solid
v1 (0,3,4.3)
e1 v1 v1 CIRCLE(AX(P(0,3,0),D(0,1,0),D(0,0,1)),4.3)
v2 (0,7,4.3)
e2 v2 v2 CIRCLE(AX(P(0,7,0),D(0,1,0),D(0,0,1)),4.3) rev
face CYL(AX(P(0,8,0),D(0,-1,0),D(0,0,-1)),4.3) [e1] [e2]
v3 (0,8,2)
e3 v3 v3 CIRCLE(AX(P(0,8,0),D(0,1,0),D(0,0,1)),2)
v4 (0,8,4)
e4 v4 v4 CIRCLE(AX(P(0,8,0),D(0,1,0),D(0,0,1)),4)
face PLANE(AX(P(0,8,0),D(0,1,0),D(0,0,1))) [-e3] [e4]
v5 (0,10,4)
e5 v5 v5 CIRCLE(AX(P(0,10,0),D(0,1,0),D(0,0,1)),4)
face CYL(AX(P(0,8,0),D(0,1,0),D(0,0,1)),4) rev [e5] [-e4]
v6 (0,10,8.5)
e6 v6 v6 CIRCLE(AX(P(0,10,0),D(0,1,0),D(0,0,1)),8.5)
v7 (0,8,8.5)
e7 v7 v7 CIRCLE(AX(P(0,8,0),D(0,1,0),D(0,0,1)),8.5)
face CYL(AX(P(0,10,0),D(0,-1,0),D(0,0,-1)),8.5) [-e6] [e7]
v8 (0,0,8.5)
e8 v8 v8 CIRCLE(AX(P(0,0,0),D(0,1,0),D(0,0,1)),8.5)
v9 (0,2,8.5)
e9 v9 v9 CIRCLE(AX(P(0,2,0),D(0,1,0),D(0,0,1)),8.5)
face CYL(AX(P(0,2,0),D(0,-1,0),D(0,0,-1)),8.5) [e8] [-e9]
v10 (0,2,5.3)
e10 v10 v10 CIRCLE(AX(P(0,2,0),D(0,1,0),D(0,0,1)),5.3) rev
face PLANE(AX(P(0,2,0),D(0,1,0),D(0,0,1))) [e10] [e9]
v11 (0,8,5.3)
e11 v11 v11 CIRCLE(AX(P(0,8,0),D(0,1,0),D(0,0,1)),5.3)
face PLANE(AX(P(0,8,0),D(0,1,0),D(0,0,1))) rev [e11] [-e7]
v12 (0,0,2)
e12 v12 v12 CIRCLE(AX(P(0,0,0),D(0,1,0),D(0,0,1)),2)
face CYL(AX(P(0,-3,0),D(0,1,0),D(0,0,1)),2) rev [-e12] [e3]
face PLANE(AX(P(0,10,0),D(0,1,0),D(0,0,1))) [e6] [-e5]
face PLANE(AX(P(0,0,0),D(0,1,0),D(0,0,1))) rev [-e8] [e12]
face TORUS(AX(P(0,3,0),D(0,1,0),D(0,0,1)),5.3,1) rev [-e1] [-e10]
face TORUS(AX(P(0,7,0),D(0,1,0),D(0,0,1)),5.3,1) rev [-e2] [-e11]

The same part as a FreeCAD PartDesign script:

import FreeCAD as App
import Part
import Sketcher
Q = App.Units.Quantity


def edges_at(feature, points):
    """Names of the edges that pass closest to the given points."""
    edges = feature.Shape.Edges
    near = lambda p: min(range(len(edges)), key=lambda i: edges[i].distToShape(Part.Vertex(*p))[0])
    return sorted({f"Edge{near(p) + 1}" for p in points})

doc = App.newDocument("Part")
body = doc.addObject("PartDesign::Body", "Body")

# Sketch on XZ plane
sketch1 = body.newObject("Sketcher::SketchObject", "Sketch")
sketch1.AttachmentSupport = (doc.getObject("XZ_Plane"), [""])
sketch1.MapMode = "FlatFace"
sketch1.addGeometry(Part.Circle(App.Vector(0, 0, 0), App.Vector(0, 0, 1), 8), False)
sketch1.addConstraint(Sketcher.Constraint("Coincident", 0, 3, -1, 1))
sketch1.addConstraint(Sketcher.Constraint("Diameter", 0, Q("17 mm")))
pad1 = body.newObject("PartDesign::Pad", "Pad")
pad1.Profile = sketch1
pad1.Length = 2
pad1.Reversed = True

# Sketch on XZ plane
sketch2 = body.newObject("Sketcher::SketchObject", "Sketch001")
sketch2.AttachmentSupport = (doc.getObject("XZ_Plane"), [""])
sketch2.MapMode = "FlatFace"
sketch2.AttachmentOffset = App.Placement(App.Vector(0, 0, -2), App.Rotation())
sketch2.addGeometry(Part.Circle(App.Vector(0, 0, 0), App.Vector(0, 0, 1), 4.3), False)
sketch2.addConstraint(Sketcher.Constraint("Coincident", 0, 3, -1, 1))
sketch2.addConstraint(Sketcher.Constraint("Diameter", 0, Q("8.6 mm")))
pad2 = body.newObject("PartDesign::Pad", "Pad001")
pad2.Profile = sketch2
pad2.Length = 6
pad2.Reversed = True

# Sketch on XZ plane
sketch3 = body.newObject("Sketcher::SketchObject", "Sketch002")
sketch3.AttachmentSupport = (doc.getObject("XZ_Plane"), [""])
sketch3.MapMode = "FlatFace"
sketch3.AttachmentOffset = App.Placement(App.Vector(0, 0, -8), App.Rotation())
sketch3.addGeometry(Part.Circle(App.Vector(0, 0, 0), App.Vector(0, 0, 1), 8), False)
sketch3.addConstraint(Sketcher.Constraint("Coincident", 0, 3, -1, 1))
sketch3.addConstraint(Sketcher.Constraint("Diameter", 0, Q("17 mm")))
pad3 = body.newObject("PartDesign::Pad", "Pad002")
pad3.Profile = sketch3
pad3.Length = 2
pad3.Reversed = True

# Sketch on XZ plane
sketch4 = body.newObject("Sketcher::SketchObject", "Sketch003")
sketch4.AttachmentSupport = (doc.getObject("XZ_Plane"), [""])
sketch4.MapMode = "FlatFace"
sketch4.AttachmentOffset = App.Placement(App.Vector(0, 0, -10), App.Rotation())
sketch4.addGeometry(Part.Circle(App.Vector(0, 0, 0), App.Vector(0, 0, 1), 4), False)
sketch4.addConstraint(Sketcher.Constraint("Coincident", 0, 3, -1, 1))
sketch4.addConstraint(Sketcher.Constraint("Diameter", 0, Q("8 mm")))
pocket1 = body.newObject("PartDesign::Pocket", "Pocket")
pocket1.Profile = sketch4
pocket1.Length = 2
pocket1.Reversed = True

# Sketch on XZ plane
sketch5 = body.newObject("Sketcher::SketchObject", "Sketch004")
sketch5.AttachmentSupport = (doc.getObject("XZ_Plane"), [""])
sketch5.MapMode = "FlatFace"
sketch5.AttachmentOffset = App.Placement(App.Vector(0, 0, -8), App.Rotation())
sketch5.addGeometry(Part.Circle(App.Vector(0, 0, 0), App.Vector(0, 0, 1), 2), False)
sketch5.addConstraint(Sketcher.Constraint("Coincident", 0, 3, -1, 1))
sketch5.addConstraint(Sketcher.Constraint("Diameter", 0, Q("4 mm")))
pocket2 = body.newObject("PartDesign::Pocket", "Pocket001")
pocket2.Profile = sketch5
pocket2.Length = 11
pocket2.Reversed = True
doc.recompute()

fillet = body.newObject("PartDesign::Fillet", "Fillet")
fillet.Base = (pocket2, edges_at(pocket2, [(-4.3, 2, 0), (-4.3, 8, 0)]))
fillet.Radius = 1

doc.recompute()
